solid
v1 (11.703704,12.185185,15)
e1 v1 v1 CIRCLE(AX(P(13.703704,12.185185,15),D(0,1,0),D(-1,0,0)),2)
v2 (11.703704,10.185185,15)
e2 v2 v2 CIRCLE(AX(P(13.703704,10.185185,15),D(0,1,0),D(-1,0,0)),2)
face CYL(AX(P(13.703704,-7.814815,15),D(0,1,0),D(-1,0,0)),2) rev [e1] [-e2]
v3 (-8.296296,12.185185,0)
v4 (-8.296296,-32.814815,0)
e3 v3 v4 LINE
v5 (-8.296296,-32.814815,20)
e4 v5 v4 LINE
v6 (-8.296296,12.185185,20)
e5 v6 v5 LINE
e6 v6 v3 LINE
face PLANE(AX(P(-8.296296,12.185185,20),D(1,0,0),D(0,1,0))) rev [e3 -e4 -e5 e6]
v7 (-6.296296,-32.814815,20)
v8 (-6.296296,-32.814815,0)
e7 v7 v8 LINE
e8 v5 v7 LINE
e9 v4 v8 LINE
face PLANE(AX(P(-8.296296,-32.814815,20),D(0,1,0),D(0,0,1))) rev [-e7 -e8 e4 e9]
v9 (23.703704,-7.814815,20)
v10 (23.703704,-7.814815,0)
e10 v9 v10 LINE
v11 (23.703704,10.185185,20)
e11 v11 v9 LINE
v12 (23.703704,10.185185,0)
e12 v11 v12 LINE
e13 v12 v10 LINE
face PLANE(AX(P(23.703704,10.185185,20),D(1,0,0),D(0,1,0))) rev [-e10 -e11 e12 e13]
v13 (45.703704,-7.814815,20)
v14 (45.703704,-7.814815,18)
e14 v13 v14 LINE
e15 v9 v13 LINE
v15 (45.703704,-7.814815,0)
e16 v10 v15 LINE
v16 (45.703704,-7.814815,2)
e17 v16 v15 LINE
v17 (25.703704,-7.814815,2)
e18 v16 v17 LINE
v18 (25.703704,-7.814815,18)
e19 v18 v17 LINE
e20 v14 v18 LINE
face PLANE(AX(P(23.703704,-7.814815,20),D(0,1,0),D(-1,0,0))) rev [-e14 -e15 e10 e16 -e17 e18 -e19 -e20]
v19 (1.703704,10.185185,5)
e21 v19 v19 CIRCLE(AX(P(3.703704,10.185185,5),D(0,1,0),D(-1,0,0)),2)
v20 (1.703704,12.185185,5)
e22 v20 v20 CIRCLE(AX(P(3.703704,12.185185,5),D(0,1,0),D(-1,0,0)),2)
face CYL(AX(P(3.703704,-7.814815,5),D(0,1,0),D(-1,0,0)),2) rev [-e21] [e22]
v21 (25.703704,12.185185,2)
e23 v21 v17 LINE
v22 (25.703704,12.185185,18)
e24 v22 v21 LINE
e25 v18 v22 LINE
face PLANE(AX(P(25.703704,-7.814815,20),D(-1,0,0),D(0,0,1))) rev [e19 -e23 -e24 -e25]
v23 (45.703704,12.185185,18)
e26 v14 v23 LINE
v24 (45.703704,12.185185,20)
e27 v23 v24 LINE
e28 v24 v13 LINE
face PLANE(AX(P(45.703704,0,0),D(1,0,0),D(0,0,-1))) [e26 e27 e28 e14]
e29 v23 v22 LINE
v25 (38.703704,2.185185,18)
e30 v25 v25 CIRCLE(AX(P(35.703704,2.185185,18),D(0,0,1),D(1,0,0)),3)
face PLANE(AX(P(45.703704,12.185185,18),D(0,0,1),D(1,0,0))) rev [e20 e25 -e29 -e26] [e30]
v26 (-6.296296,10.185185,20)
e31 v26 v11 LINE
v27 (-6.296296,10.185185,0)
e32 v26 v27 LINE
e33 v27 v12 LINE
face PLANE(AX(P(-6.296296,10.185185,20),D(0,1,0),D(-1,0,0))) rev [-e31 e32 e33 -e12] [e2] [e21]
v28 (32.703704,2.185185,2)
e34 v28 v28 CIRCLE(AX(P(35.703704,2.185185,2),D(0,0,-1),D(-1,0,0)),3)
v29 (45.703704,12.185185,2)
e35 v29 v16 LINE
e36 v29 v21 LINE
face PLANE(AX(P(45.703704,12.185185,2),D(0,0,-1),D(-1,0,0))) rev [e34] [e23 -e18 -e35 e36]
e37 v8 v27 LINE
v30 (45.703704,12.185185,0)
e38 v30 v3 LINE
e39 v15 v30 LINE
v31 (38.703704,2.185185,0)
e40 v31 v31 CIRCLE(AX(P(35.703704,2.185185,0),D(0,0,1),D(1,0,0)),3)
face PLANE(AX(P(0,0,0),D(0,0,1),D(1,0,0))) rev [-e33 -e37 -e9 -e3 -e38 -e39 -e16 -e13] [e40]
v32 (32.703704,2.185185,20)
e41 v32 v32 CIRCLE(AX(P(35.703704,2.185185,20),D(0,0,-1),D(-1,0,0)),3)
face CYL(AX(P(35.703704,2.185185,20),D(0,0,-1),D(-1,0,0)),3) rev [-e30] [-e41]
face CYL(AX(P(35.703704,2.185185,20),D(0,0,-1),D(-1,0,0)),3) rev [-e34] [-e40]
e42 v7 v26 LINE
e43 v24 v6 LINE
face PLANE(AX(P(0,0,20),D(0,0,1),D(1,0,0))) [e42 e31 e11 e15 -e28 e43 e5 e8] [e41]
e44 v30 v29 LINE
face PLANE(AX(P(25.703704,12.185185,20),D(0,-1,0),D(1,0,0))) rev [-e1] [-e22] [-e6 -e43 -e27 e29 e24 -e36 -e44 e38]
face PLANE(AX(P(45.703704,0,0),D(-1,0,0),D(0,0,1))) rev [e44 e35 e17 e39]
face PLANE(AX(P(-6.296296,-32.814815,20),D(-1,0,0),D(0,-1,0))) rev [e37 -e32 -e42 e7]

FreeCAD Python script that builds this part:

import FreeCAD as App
import Part
import Sketcher

V = App.Vector
Q = App.Units.Quantity

doc = App.newDocument("Part")
body = doc.addObject("PartDesign::Body", "Body")

# Sketch on XY plane
sketch1 = doc.addObject("Sketcher::SketchObject", "Sketch")
body.addObject(sketch1)
sketch1.AttachmentSupport = (doc.XY_Plane, [""])
sketch1.MapMode = "FlatFace"
sketch1.addGeometry([
    Part.LineSegment(V(-8.296296, 12.185185, 0), V(-8.296296, -32.814815, 0)),  # 0
    Part.LineSegment(V(-8.296296, -32.814815, 0), V(-6.296296, -32.814815, 0)),  # 1
    Part.LineSegment(V(-6.296296, -32.814815, 0), V(-6.296296, 10.185185, 0)),  # 2
    Part.LineSegment(V(-6.296296, 10.185185, 0), V(23.703704, 10.185185, 0)),  # 3
    Part.LineSegment(V(23.703704, 10.185185, 0), V(23.703704, -7.814815, 0)),  # 4
    Part.LineSegment(V(23.703704, -7.814815, 0), V(25.703704, -7.814815, 0)),  # 5
    Part.LineSegment(V(25.703704, -7.814815, 0), V(25.703704, 12.185185, 0)),  # 6
    Part.LineSegment(V(25.703704, 12.185185, 0), V(-8.296296, 12.185185, 0)),  # 7
], False)
sketch1.addConstraint([
    Sketcher.Constraint("Coincident", 0, 2, 1, 1),
    Sketcher.Constraint("Coincident", 1, 2, 2, 1),
    Sketcher.Constraint("Coincident", 2, 2, 3, 1),
    Sketcher.Constraint("Coincident", 3, 2, 4, 1),
    Sketcher.Constraint("Coincident", 4, 2, 5, 1),
    Sketcher.Constraint("Coincident", 5, 2, 6, 1),
    Sketcher.Constraint("Coincident", 6, 2, 7, 1),
    Sketcher.Constraint("Coincident", 7, 2, 0, 1),
    Sketcher.Constraint("Vertical", 0),
    Sketcher.Constraint("Horizontal", 1),
    Sketcher.Constraint("Vertical", 2),
    Sketcher.Constraint("Horizontal", 3),
    Sketcher.Constraint("Vertical", 4),
    Sketcher.Constraint("Horizontal", 5),
    Sketcher.Constraint("Vertical", 6),
    Sketcher.Constraint("Horizontal", 7),
    Sketcher.Constraint("Equal", 1, 5),
    Sketcher.Constraint("DistanceX", 1, 1, 1, 2, Q("2 mm")),
    Sketcher.Constraint("DistanceX", 3, 1, 3, 2, Q("30 mm")),
    Sketcher.Constraint("DistanceY", 0, 2, 0, 1, Q("45 mm")),
    Sketcher.Constraint("DistanceY", 2, 1, 2, 2, Q("43 mm")),
    Sketcher.Constraint("DistanceY", 4, 2, 4, 1, Q("18 mm")),
    Sketcher.Constraint("DistanceX", 0, 2, -1, 1, Q("8.296296 mm")),
    Sketcher.Constraint("DistanceY", 0, 2, -1, 1, Q("32.814815 mm")),
])
pad1 = doc.addObject("PartDesign::Pad", "Pad")
body.addObject(pad1)
pad1.Profile = sketch1
pad1.Length = 20

# Sketch on XZ plane
sketch2 = doc.addObject("Sketcher::SketchObject", "Sketch001")
body.addObject(sketch2)
sketch2.AttachmentSupport = (doc.XZ_Plane, [""])
sketch2.MapMode = "FlatFace"
sketch2.AttachmentOffset = App.Placement(V(0, 0, -12.185185), App.Rotation())
sketch2.addGeometry([
    Part.Circle(V(13.703704, 15, 0), V(0, 0, 1), 2),
    Part.Circle(V(3.703704, 5, 0), V(0, 0, 1), 2),
], False)
sketch2.addConstraint([
    Sketcher.Constraint("Equal", 0, 1),
    Sketcher.Constraint("Diameter", 0, Q("4 mm")),
    Sketcher.Constraint("DistanceY", -1, 1, 0, 3, Q("15 mm")),
    Sketcher.Constraint("DistanceY", -1, 1, 1, 3, Q("5 mm")),
    Sketcher.Constraint("DistanceX", 1, 3, 0, 3, Q("10 mm")),
    Sketcher.Constraint("DistanceX", -1, 1, 0, 3, Q("13.703704 mm")),
])
pocket1 = doc.addObject("PartDesign::Pocket", "Pocket")
body.addObject(pocket1)
pocket1.Profile = sketch2
pocket1.Length = 20
pocket1.Reversed = True

# Sketch on YZ plane
sketch3 = doc.addObject("Sketcher::SketchObject", "Sketch002")
body.addObject(sketch3)
sketch3.AttachmentSupport = (doc.YZ_Plane, [""])
sketch3.MapMode = "FlatFace"
sketch3.AttachmentOffset = App.Placement(V(0, 0, 25.703704), App.Rotation())
sketch3.addGeometry([
    Part.LineSegment(V(12.185185, 20, 0), V(-7.814815, 20, 0)),  # 0
    Part.LineSegment(V(-7.814815, 20, 0), V(-7.814815, 18, 0)),  # 1
    Part.LineSegment(V(-7.814815, 18, 0), V(12.185185, 18, 0)),  # 2
    Part.LineSegment(V(12.185185, 18, 0), V(12.185185, 20, 0)),  # 3
    Part.LineSegment(V(12.185185, 2, 0), V(-7.814815, 2, 0)),  # 4
    Part.LineSegment(V(-7.814815, 2, 0), V(-7.814815, 0, 0)),  # 5
    Part.LineSegment(V(-7.814815, 0, 0), V(12.185185, 0, 0)),  # 6
    Part.LineSegment(V(12.185185, 0, 0), V(12.185185, 2, 0)),  # 7
], False)
sketch3.addConstraint([
    Sketcher.Constraint("Coincident", 0, 2, 1, 1),
    Sketcher.Constraint("Coincident", 1, 2, 2, 1),
    Sketcher.Constraint("Coincident", 2, 2, 3, 1),
    Sketcher.Constraint("Coincident", 3, 2, 0, 1),
    Sketcher.Constraint("Coincident", 4, 2, 5, 1),
    Sketcher.Constraint("Coincident", 5, 2, 6, 1),
    Sketcher.Constraint("Coincident", 6, 2, 7, 1),
    Sketcher.Constraint("Coincident", 7, 2, 4, 1),
    Sketcher.Constraint("Horizontal", 0),
    Sketcher.Constraint("Vertical", 1),
    Sketcher.Constraint("Horizontal", 2),
    Sketcher.Constraint("Vertical", 3),
    Sketcher.Constraint("Horizontal", 4),
    Sketcher.Constraint("Vertical", 5),
    Sketcher.Constraint("Horizontal", 6),
    Sketcher.Constraint("Vertical", 7),
    Sketcher.Constraint("PointOnObject", 5, 2, -1),
    Sketcher.Constraint("Vertical", 1, 2, 4, 2),
    Sketcher.Constraint("Vertical", 3, 2, 6, 2),
    Sketcher.Constraint("Equal", 3, 5),
    Sketcher.Constraint("DistanceX", 0, 2, 0, 1, Q("20 mm")),
    Sketcher.Constraint("DistanceY", 1, 2, 1, 1, Q("2 mm")),
    Sketcher.Constraint("DistanceY", -1, 1, 0, 2, Q("20 mm")),
    Sketcher.Constraint("DistanceX", 0, 2, -1, 1, Q("7.814815 mm")),
])
pad2 = doc.addObject("PartDesign::Pad", "Pad001")
body.addObject(pad2)
pad2.Profile = sketch3
pad2.Length = 20

# Sketch on XY plane
sketch4 = doc.addObject("Sketcher::SketchObject", "Sketch003")
body.addObject(sketch4)
sketch4.AttachmentSupport = (doc.XY_Plane, [""])
sketch4.MapMode = "FlatFace"
sketch4.addGeometry(Part.Circle(V(35.703704, 2.185185, 0), V(0, 0, 1), 3), False)
sketch4.addConstraint([
    Sketcher.Constraint("Diameter", 0, Q("6 mm")),
    Sketcher.Constraint("DistanceX", -1, 1, 0, 3, Q("35.703704 mm")),
    Sketcher.Constraint("DistanceY", -1, 1, 0, 3, Q("2.185185 mm")),
])
pocket2 = doc.addObject("PartDesign::Pocket", "Pocket001")
body.addObject(pocket2)
pocket2.Profile = sketch4
pocket2.Type = "ThroughAll"
pocket2.Midplane = True

doc.recompute()
